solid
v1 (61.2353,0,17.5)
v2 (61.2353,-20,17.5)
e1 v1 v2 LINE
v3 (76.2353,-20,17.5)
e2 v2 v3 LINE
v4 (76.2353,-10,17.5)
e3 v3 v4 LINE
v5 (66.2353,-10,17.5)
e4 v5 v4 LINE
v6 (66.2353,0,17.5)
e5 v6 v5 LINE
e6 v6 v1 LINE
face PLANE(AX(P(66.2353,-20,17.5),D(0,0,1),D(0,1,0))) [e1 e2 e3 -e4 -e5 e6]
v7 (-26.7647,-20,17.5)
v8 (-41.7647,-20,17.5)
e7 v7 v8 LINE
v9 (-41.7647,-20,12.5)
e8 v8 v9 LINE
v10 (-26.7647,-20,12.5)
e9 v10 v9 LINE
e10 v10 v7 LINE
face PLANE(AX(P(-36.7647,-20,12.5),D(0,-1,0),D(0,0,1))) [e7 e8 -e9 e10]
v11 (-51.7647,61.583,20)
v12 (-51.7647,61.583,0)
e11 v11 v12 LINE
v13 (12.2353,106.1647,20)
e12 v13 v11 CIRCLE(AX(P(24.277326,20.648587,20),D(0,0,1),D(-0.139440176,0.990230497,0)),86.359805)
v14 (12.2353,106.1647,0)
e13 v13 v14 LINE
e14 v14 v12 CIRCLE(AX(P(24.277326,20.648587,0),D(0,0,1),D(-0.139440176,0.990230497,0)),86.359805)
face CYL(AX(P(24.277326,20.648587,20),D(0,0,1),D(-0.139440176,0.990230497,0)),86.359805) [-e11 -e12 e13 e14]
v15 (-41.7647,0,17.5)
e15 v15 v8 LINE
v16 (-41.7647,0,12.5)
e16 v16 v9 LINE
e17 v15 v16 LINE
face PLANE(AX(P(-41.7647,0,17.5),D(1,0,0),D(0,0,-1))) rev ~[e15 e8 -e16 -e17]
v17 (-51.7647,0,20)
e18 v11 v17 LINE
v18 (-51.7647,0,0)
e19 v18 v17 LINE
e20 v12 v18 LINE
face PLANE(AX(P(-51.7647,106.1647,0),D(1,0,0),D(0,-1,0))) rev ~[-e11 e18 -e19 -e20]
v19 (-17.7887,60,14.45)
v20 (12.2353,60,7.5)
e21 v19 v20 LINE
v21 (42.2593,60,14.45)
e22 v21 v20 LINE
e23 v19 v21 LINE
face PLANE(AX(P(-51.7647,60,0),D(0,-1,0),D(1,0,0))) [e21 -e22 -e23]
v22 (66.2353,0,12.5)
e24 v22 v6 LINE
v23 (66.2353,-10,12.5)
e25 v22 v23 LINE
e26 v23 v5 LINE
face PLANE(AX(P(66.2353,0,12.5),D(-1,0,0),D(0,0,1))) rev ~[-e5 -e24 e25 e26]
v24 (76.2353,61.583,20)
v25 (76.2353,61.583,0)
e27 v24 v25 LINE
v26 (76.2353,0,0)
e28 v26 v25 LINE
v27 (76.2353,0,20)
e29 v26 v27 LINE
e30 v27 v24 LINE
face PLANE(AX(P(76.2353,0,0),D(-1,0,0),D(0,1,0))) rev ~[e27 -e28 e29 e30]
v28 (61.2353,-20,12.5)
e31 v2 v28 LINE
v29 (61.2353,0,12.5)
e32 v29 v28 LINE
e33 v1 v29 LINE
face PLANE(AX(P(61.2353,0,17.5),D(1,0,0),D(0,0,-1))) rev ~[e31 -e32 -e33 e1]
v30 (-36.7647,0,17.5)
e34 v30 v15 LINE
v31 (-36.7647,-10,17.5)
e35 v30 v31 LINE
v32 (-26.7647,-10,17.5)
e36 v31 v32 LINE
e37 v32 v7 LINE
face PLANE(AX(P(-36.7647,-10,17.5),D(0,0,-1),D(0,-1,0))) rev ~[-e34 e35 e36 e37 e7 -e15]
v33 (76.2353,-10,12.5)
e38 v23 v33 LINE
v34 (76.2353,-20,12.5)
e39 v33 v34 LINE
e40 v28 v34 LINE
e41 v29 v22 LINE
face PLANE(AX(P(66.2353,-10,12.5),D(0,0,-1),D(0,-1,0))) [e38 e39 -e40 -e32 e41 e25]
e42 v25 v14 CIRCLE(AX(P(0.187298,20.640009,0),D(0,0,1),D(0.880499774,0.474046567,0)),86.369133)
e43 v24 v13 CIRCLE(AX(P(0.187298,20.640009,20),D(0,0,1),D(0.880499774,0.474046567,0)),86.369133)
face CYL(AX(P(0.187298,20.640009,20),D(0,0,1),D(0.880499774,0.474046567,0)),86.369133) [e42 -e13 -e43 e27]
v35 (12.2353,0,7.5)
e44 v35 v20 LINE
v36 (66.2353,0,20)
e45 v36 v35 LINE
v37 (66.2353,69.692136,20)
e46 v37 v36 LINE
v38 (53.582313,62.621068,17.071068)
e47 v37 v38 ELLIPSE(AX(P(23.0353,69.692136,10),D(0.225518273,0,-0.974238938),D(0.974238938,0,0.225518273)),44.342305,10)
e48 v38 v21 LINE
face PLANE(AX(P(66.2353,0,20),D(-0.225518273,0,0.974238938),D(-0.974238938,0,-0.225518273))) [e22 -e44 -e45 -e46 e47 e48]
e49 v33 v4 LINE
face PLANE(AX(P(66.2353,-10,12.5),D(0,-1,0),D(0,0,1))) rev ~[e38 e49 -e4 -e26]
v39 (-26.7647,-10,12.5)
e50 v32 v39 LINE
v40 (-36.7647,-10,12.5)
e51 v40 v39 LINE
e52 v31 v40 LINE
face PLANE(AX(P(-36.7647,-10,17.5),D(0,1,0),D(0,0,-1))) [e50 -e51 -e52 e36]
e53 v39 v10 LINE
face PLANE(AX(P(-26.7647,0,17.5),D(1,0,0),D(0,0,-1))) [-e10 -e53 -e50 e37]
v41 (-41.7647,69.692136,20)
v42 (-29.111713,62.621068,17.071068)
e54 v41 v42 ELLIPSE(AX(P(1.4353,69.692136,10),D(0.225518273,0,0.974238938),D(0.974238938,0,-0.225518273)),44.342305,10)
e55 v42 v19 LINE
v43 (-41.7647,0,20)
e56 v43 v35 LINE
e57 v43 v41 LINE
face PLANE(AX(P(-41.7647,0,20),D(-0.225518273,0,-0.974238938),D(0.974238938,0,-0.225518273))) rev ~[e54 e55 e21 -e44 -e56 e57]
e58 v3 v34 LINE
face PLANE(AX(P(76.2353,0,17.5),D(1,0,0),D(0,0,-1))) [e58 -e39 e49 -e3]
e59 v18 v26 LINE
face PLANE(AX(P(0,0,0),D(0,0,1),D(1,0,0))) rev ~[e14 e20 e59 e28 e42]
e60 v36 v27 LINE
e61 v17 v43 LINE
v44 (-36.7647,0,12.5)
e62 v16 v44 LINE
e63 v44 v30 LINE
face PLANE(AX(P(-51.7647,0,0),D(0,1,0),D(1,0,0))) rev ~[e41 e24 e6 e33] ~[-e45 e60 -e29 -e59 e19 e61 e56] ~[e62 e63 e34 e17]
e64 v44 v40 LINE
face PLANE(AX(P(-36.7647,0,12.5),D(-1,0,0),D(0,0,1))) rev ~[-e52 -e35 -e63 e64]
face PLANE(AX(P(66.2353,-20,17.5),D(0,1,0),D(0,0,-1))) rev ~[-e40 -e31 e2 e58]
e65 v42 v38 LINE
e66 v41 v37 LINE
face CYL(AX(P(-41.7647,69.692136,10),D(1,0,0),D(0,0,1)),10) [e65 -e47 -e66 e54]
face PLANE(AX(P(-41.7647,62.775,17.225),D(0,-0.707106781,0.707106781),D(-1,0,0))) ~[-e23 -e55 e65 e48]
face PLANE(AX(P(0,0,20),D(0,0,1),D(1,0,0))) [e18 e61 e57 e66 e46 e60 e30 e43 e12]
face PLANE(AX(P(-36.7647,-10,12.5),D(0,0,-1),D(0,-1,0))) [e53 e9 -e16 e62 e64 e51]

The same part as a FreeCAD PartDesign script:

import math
import FreeCAD as App
import Part
import Sketcher
from FreeCAD import Vector


def edges_at(feature, points):
    """Names of the edges that pass closest to the given points."""
    edges = feature.Shape.Edges
    near = lambda p: min(range(len(edges)), key=lambda i: edges[i].distToShape(Part.Vertex(*p))[0])
    return sorted({f"Edge{near(p) + 1}" for p in points})

doc = App.newDocument("Part")
body = doc.addObject("PartDesign::Body", "Body")

sketch1 = body.newObject("Sketcher::SketchObject", "Sketch")
sketch1.AttachmentSupport = (doc.getObject("XY_Plane"), [""])
sketch1.MapMode = "FlatFace"
sketch1.addGeometry(Part.LineSegment(Vector(-52, 106, 0), Vector(-52, 0, 0)), False)
sketch1.addGeometry(Part.LineSegment(Vector(-52, 0, 0), Vector(76, 0, 0)), False)
sketch1.addGeometry(Part.LineSegment(Vector(76, 0, 0), Vector(76, 106, 0)), False)
sketch1.addGeometry(Part.LineSegment(Vector(76, 106, 0), Vector(-52, 106, 0)), False)
sketch1.addConstraint(Sketcher.Constraint("Coincident", 0, 2, 1, 1))
sketch1.addConstraint(Sketcher.Constraint("Coincident", 1, 2, 2, 1))
sketch1.addConstraint(Sketcher.Constraint("Coincident", 2, 2, 3, 1))
sketch1.addConstraint(Sketcher.Constraint("Coincident", 3, 2, 0, 1))
sketch1.addConstraint(Sketcher.Constraint("Vertical", 0))
sketch1.addConstraint(Sketcher.Constraint("Horizontal", 1))
sketch1.addConstraint(Sketcher.Constraint("Vertical", 2))
sketch1.addConstraint(Sketcher.Constraint("Horizontal", 3))
sketch1.addConstraint(Sketcher.Constraint("PointOnObject", 0, 2, -1))
sketch1.addConstraint(Sketcher.Constraint("DistanceX", 1, 1, 1, 2, 128.0))
sketch1.addConstraint(Sketcher.Constraint("DistanceY", 0, 2, 0, 1, 106.1647))
sketch1.addConstraint(Sketcher.Constraint("DistanceX", 0, 2, -1, 1, 51.7647))
pad1 = body.newObject("PartDesign::Pad", "Pad")
pad1.Profile = sketch1
pad1.Length = 20

sketch2 = body.newObject("Sketcher::SketchObject", "Sketch001")
sketch2.AttachmentSupport = (doc.getObject("XY_Plane"), [""])
sketch2.MapMode = "FlatFace"
sketch2.AttachmentOffset = App.Placement(Vector(0, 0, 20), App.Rotation())
sketch2.addGeometry(Part.LineSegment(Vector(12, 106, 0), Vector(-52, 106, 0)), False)
sketch2.addGeometry(Part.LineSegment(Vector(-52, 106, 0), Vector(-52, 62, 0)), False)
sketch2.addGeometry(Part.ArcOfCircle(Part.Circle(Vector(24, 21, 0), Vector(0, 0, 1), 86), math.radians(98), math.radians(152)), False)
sketch2.addGeometry(Part.LineSegment(Vector(76, 106, 0), Vector(12, 106, 0)), False)
sketch2.addGeometry(Part.ArcOfCircle(Part.Circle(Vector(0, 21, 0), Vector(0, 0, 1), 86), math.radians(28), math.radians(82)), False)
sketch2.addGeometry(Part.LineSegment(Vector(76, 62, 0), Vector(76, 106, 0)), False)
sketch2.addConstraint(Sketcher.Constraint("Coincident", 0, 2, 1, 1))
sketch2.addConstraint(Sketcher.Constraint("Coincident", 1, 2, 2, 2))
sketch2.addConstraint(Sketcher.Constraint("Coincident", 2, 1, 0, 1))
sketch2.addConstraint(Sketcher.Constraint("Coincident", 3, 2, 4, 2))
sketch2.addConstraint(Sketcher.Constraint("Coincident", 4, 1, 5, 1))
sketch2.addConstraint(Sketcher.Constraint("Coincident", 5, 2, 3, 1))
sketch2.addConstraint(Sketcher.Constraint("Horizontal", 0))
sketch2.addConstraint(Sketcher.Constraint("Vertical", 1))
sketch2.addConstraint(Sketcher.Constraint("Horizontal", 3))
sketch2.addConstraint(Sketcher.Constraint("Vertical", 5))
sketch2.addConstraint(Sketcher.Constraint("Coincident", 3, 2, 2, 1))
sketch2.addConstraint(Sketcher.Constraint("Horizontal", 1, 2, 4, 1))
sketch2.addConstraint(Sketcher.Constraint("Equal", 0, 3))
sketch2.addConstraint(Sketcher.Constraint("Radius", 2, 86.36))
sketch2.addConstraint(Sketcher.Constraint("DistanceX", 0, 2, 0, 1, 64.0))
sketch2.addConstraint(Sketcher.Constraint("Radius", 4, 86.369))
sketch2.addConstraint(Sketcher.Constraint("DistanceY", -1, 1, 4, 3, 20.64))
sketch2.addConstraint(Sketcher.Constraint("DistanceX", 4, 3, 2, 3, 24.09))
sketch2.addConstraint(Sketcher.Constraint("DistanceX", -1, 1, 2, 3, 24.2774))
pocket1 = body.newObject("PartDesign::Pocket", "Pocket")
pocket1.Profile = sketch2
pocket1.Length = 20

sketch3 = body.newObject("Sketcher::SketchObject", "Sketch002")
sketch3.AttachmentSupport = (doc.getObject("XZ_Plane"), [""])
sketch3.MapMode = "FlatFace"
sketch3.addGeometry(Part.LineSegment(Vector(66, 20, 0), Vector(-42, 20, 0)), False)
sketch3.addGeometry(Part.LineSegment(Vector(-42, 20, 0), Vector(12, 8, 0)), False)
sketch3.addGeometry(Part.LineSegment(Vector(12, 8, 0), Vector(66, 20, 0)), False)
sketch3.addConstraint(Sketcher.Constraint("Coincident", 0, 2, 1, 1))
sketch3.addConstraint(Sketcher.Constraint("Coincident", 1, 2, 2, 1))
sketch3.addConstraint(Sketcher.Constraint("Coincident", 2, 2, 0, 1))
sketch3.addConstraint(Sketcher.Constraint("Horizontal", 0))
sketch3.addConstraint(Sketcher.Constraint("Equal", 1, 2))
sketch3.addConstraint(Sketcher.Constraint("DistanceY", -1, 1, 1, 2, 7.5))
sketch3.addConstraint(Sketcher.Constraint("DistanceX", 0, 2, 0, 1, 108.0))
sketch3.addConstraint(Sketcher.Constraint("DistanceY", -1, 1, 0, 2, 20.0))
sketch3.addConstraint(Sketcher.Constraint("DistanceX", 0, 2, -1, 1, 41.7647))
pocket2 = body.newObject("PartDesign::Pocket", "Pocket001")
pocket2.Profile = sketch3
pocket2.Length = 60
doc.recompute()

chamfer = body.newObject("PartDesign::Chamfer", "Chamfer")
chamfer.Base = (pocket2, edges_at(pocket2, [(12.235, 60, 20)]))
chamfer.Size = 5.55
doc.recompute()

fillet = body.newObject("PartDesign::Fillet", "Fillet")
fillet.Base = (chamfer, edges_at(chamfer, [(12.235, 65.55, 20)]))
fillet.Radius = 10

sketch4 = body.newObject("Sketcher::SketchObject", "Sketch003")
sketch4.AttachmentSupport = (doc.getObject("XZ_Plane"), [""])
sketch4.MapMode = "FlatFace"
sketch4.addGeometry(Part.LineSegment(Vector(-42, 18, 0), Vector(-42, 12, 0)), False)
sketch4.addGeometry(Part.LineSegment(Vector(-42, 12, 0), Vector(-37, 12, 0)), False)
sketch4.addGeometry(Part.LineSegment(Vector(-37, 12, 0), Vector(-37, 18, 0)), False)
sketch4.addGeometry(Part.LineSegment(Vector(-37, 18, 0), Vector(-42, 18, 0)), False)
sketch4.addConstraint(Sketcher.Constraint("Coincident", 0, 2, 1, 1))
sketch4.addConstraint(Sketcher.Constraint("Coincident", 1, 2, 2, 1))
sketch4.addConstraint(Sketcher.Constraint("Coincident", 2, 2, 3, 1))
sketch4.addConstraint(Sketcher.Constraint("Coincident", 3, 2, 0, 1))
sketch4.addConstraint(Sketcher.Constraint("Vertical", 0))
sketch4.addConstraint(Sketcher.Constraint("Horizontal", 1))
sketch4.addConstraint(Sketcher.Constraint("Vertical", 2))
sketch4.addConstraint(Sketcher.Constraint("Horizontal", 3))
sketch4.addConstraint(Sketcher.Constraint("Equal", 3, 0))
sketch4.addConstraint(Sketcher.Constraint("DistanceX", 1, 1, 1, 2, 5.0))
sketch4.addConstraint(Sketcher.Constraint("DistanceY", -1, 1, 0, 2, 12.5))
sketch4.addConstraint(Sketcher.Constraint("DistanceX", 0, 2, -1, 1, 41.7647))
pad2 = body.newObject("PartDesign::Pad", "Pad001")
pad2.Profile = sketch4
pad2.Length = 20

sketch5 = body.newObject("Sketcher::SketchObject", "Sketch004")
sketch5.AttachmentSupport = (doc.getObject("YZ_Plane"), [""])
sketch5.MapMode = "FlatFace"
sketch5.AttachmentOffset = App.Placement(Vector(0, 0, -36.7647), App.Rotation())
sketch5.addGeometry(Part.LineSegment(Vector(-20, 12, 0), Vector(-10, 12, 0)), False)
sketch5.addGeometry(Part.LineSegment(Vector(-10, 12, 0), Vector(-10, 18, 0)), False)
sketch5.addGeometry(Part.LineSegment(Vector(-10, 18, 0), Vector(-20, 18, 0)), False)
sketch5.addGeometry(Part.LineSegment(Vector(-20, 18, 0), Vector(-20, 12, 0)), False)
sketch5.addConstraint(Sketcher.Constraint("Coincident", 0, 2, 1, 1))
sketch5.addConstraint(Sketcher.Constraint("Coincident", 1, 2, 2, 1))
sketch5.addConstraint(Sketcher.Constraint("Coincident", 2, 2, 3, 1))
sketch5.addConstraint(Sketcher.Constraint("Coincident", 3, 2, 0, 1))
sketch5.addConstraint(Sketcher.Constraint("Horizontal", 0))
sketch5.addConstraint(Sketcher.Constraint("Vertical", 1))
sketch5.addConstraint(Sketcher.Constraint("Horizontal", 2))
sketch5.addConstraint(Sketcher.Constraint("Vertical", 3))
sketch5.addConstraint(Sketcher.Constraint("DistanceX", 0, 1, 0, 2, 10.0))
sketch5.addConstraint(Sketcher.Constraint("DistanceY", 1, 1, 1, 2, 5.0))
sketch5.addConstraint(Sketcher.Constraint("DistanceX", 0, 2, -1, 1, 10.0))
sketch5.addConstraint(Sketcher.Constraint("DistanceY", -1, 1, 0, 2, 12.5))
pad3 = body.newObject("PartDesign::Pad", "Pad002")
pad3.Profile = sketch5
pad3.Length = 10

sketch6 = body.newObject("Sketcher::SketchObject", "Sketch005")
sketch6.AttachmentSupport = (doc.getObject("XZ_Plane"), [""])
sketch6.MapMode = "FlatFace"
sketch6.addGeometry(Part.LineSegment(Vector(66.2, 12.5, 0), Vector(66.2, 17.5, 0)), False)
sketch6.addGeometry(Part.LineSegment(Vector(66.2, 17.5, 0), Vector(61.2, 17.5, 0)), False)
sketch6.addGeometry(Part.LineSegment(Vector(61.2, 17.5, 0), Vector(61.2, 12.5, 0)), False)
sketch6.addGeometry(Part.LineSegment(Vector(61.2, 12.5, 0), Vector(66.2, 12.5, 0)), False)
sketch6.addConstraint(Sketcher.Constraint("Coincident", 0, 2, 1, 1))
sketch6.addConstraint(Sketcher.Constraint("Coincident", 1, 2, 2, 1))
sketch6.addConstraint(Sketcher.Constraint("Coincident", 2, 2, 3, 1))
sketch6.addConstraint(Sketcher.Constraint("Coincident", 3, 2, 0, 1))
sketch6.addConstraint(Sketcher.Constraint("Vertical", 0))
sketch6.addConstraint(Sketcher.Constraint("Horizontal", 1))
sketch6.addConstraint(Sketcher.Constraint("Vertical", 2))
sketch6.addConstraint(Sketcher.Constraint("Horizontal", 3))
sketch6.addConstraint(Sketcher.Constraint("Equal", 3, 0))
sketch6.addConstraint(Sketcher.Constraint("DistanceX", 1, 2, 1, 1, 5.0))
sketch6.addConstraint(Sketcher.Constraint("DistanceY", -1, 1, 0, 2, 17.5))
sketch6.addConstraint(Sketcher.Constraint("DistanceX", -1, 1, 0, 2, 66.2353))
pad4 = body.newObject("PartDesign::Pad", "Pad003")
pad4.Profile = sketch6
pad4.Length = 20

sketch7 = body.newObject("Sketcher::SketchObject", "Sketch006")
sketch7.AttachmentSupport = (doc.getObject("YZ_Plane"), [""])
sketch7.MapMode = "FlatFace"
sketch7.AttachmentOffset = App.Placement(Vector(0, 0, 66.2353), App.Rotation())
sketch7.addGeometry(Part.LineSegment(Vector(-10, 18, 0), Vector(-20, 18, 0)), False)
sketch7.addGeometry(Part.LineSegment(Vector(-20, 18, 0), Vector(-20, 12, 0)), False)
sketch7.addGeometry(Part.LineSegment(Vector(-20, 12, 0), Vector(-10, 12, 0)), False)
sketch7.addGeometry(Part.LineSegment(Vector(-10, 12, 0), Vector(-10, 18, 0)), False)
sketch7.addConstraint(Sketcher.Constraint("Coincident", 0, 2, 1, 1))
sketch7.addConstraint(Sketcher.Constraint("Coincident", 1, 2, 2, 1))
sketch7.addConstraint(Sketcher.Constraint("Coincident", 2, 2, 3, 1))
sketch7.addConstraint(Sketcher.Constraint("Coincident", 3, 2, 0, 1))
sketch7.addConstraint(Sketcher.Constraint("Horizontal", 0))
sketch7.addConstraint(Sketcher.Constraint("Vertical", 1))
sketch7.addConstraint(Sketcher.Constraint("Horizontal", 2))
sketch7.addConstraint(Sketcher.Constraint("Vertical", 3))
sketch7.addConstraint(Sketcher.Constraint("DistanceX", 0, 2, 0, 1, 10.0))
sketch7.addConstraint(Sketcher.Constraint("DistanceY", 1, 2, 1, 1, 5.0))
sketch7.addConstraint(Sketcher.Constraint("DistanceX", 0, 2, -1, 1, 20.0))
sketch7.addConstraint(Sketcher.Constraint("DistanceY", -1, 1, 0, 2, 17.5))
pad5 = body.newObject("PartDesign::Pad", "Pad004")
pad5.Profile = sketch7
pad5.Length = 10

doc.recompute()
